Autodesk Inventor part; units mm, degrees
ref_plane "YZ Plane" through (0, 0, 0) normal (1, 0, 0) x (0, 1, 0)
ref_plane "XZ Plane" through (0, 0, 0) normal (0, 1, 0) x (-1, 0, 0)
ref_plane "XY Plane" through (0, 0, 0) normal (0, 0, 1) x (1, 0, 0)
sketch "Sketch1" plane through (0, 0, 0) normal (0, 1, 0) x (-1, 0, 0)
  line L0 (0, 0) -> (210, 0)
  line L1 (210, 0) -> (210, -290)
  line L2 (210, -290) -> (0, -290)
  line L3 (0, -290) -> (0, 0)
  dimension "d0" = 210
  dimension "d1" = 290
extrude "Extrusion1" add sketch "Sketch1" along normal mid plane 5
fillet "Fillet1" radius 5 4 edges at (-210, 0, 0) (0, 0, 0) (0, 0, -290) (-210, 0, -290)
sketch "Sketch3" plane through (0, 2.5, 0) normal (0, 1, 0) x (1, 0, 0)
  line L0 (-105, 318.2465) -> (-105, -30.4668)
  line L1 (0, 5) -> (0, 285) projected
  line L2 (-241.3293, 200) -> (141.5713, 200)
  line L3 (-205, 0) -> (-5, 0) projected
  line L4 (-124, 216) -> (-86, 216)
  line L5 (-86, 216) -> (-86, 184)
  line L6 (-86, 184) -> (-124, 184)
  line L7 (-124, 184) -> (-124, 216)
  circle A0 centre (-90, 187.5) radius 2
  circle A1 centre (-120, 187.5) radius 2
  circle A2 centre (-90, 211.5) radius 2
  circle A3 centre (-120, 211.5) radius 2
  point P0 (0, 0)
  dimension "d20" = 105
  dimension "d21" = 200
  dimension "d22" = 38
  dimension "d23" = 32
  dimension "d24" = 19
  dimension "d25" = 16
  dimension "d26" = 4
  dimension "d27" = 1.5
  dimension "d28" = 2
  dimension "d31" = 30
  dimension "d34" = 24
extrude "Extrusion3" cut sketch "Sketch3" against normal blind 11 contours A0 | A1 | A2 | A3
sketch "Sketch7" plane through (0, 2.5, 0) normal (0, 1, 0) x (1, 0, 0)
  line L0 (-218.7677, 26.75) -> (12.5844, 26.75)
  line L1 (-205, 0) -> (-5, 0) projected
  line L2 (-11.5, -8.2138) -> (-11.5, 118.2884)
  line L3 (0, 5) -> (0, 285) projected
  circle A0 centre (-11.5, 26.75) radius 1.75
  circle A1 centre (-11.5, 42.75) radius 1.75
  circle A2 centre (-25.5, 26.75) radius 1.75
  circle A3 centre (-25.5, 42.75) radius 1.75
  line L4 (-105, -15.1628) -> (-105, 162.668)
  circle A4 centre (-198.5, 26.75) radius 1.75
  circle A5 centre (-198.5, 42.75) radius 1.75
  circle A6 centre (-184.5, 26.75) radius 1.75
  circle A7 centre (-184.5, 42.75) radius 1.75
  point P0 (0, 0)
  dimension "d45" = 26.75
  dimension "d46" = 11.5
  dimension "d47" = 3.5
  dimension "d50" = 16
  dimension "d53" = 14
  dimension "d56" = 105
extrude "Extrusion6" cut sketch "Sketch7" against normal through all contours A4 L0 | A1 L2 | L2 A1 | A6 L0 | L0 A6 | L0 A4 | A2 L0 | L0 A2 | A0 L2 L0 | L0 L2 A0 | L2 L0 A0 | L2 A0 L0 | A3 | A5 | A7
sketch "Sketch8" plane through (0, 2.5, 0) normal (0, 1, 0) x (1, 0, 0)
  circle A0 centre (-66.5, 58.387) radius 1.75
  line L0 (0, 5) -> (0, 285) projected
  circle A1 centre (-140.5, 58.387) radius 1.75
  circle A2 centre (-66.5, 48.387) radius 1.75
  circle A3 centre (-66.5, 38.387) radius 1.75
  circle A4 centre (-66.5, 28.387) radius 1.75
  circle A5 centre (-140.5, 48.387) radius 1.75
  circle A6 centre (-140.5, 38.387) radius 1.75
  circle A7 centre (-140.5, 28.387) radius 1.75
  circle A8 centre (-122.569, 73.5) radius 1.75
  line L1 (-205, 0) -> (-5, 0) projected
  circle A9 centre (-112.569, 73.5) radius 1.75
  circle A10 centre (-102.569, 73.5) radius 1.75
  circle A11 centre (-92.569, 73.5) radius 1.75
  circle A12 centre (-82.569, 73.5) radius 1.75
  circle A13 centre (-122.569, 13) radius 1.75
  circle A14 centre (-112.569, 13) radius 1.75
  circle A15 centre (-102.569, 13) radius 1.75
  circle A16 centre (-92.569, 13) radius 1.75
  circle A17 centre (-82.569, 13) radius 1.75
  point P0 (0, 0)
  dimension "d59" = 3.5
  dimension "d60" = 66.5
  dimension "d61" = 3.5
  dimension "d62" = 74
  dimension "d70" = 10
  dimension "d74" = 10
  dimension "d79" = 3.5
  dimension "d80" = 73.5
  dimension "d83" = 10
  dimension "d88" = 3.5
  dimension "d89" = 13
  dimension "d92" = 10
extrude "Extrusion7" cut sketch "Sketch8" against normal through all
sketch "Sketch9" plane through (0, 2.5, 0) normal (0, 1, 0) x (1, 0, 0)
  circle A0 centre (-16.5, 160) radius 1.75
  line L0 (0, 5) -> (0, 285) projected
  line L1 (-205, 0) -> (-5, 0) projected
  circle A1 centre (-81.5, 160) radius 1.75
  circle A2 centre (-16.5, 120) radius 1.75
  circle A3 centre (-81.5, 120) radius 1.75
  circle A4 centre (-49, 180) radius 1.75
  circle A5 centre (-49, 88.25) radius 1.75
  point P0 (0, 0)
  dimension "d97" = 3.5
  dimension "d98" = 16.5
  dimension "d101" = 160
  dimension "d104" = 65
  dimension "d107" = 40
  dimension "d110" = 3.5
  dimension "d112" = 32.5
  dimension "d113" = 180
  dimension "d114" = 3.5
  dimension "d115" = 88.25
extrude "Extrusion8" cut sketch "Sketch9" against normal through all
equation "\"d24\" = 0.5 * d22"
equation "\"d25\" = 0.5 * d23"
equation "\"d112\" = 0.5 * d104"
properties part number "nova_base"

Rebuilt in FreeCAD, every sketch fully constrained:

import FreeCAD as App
import Part
import Sketcher
from FreeCAD import Vector
Q = App.Units.Quantity


def edges_at(feature, points):
    """Names of the edges that pass closest to the given points."""
    edges = feature.Shape.Edges
    near = lambda p: min(range(len(edges)), key=lambda i: edges[i].distToShape(Part.Vertex(*p))[0])
    return sorted({f"Edge{near(p) + 1}" for p in points})


def add_polygon(sketch, points):
    """Adds a closed chain of lines whose ends are joined by coincident constraints."""
    first, n = sketch.GeometryCount, len(points)
    for a, b in zip(points, points[1:] + points[:1]):
        sketch.addGeometry(Part.LineSegment(App.Vector(*a, 0), App.Vector(*b, 0)), False)
    for i in range(n):
        sketch.addConstraint(Sketcher.Constraint("Coincident", first + i, 2, first + (i + 1) % n, 1))

doc = App.newDocument("Part")
params = doc.addObject("Spreadsheet::Sheet", "Params")
for row, (alias, value) in enumerate([
    ("sketch1_width", "210 mm"),
    ("sketch1_height", "290 mm"),
    ("pad1_length", "5 mm"),
    ("fillet_radius", "5 mm"),
    ("sketch2_diameter", "4 mm"),
    ("pocket1_length", "11 mm"),
    ("sketch3_diameter", "3.5 mm"),
    ("sketch4_diameter", "3.5 mm"),
    ("sketch5_diameter", "3.5 mm"),
], start=1):
    params.set(f"A{row}", alias)
    params.set(f"B{row}", "=" + value)
    params.setAlias(f"B{row}", alias)

body = doc.addObject("PartDesign::Body", "Body")

sketch1 = body.newObject("Sketcher::SketchObject", "Sketch")
sketch1.AttachmentSupport = (doc.getObject("XZ_Plane"), [""])
sketch1.MapMode = "FlatFace"
add_polygon(sketch1, [(-210, 0), (0, 0), (0, -290), (-210, -290)])
sketch1.addConstraint([
    Sketcher.Constraint("Horizontal", 0),
    Sketcher.Constraint("Vertical", 1),
    Sketcher.Constraint("Horizontal", 2),
    Sketcher.Constraint("Vertical", 3),
    Sketcher.Constraint("Coincident", 0, 2, -1, 1),
    Sketcher.Constraint("DistanceX", 0, 1, 0, 2, Q("210 mm")),
    Sketcher.Constraint("DistanceY", 1, 2, 1, 1, Q("290 mm")),
])
sketch1.setExpression("Constraints[9]", "Params.sketch1_width")
sketch1.setExpression("Constraints[10]", "Params.sketch1_height")
pad1 = body.newObject("PartDesign::Pad", "Pad")
pad1.Profile = sketch1
pad1.setExpression("Length", "Params.pad1_length")
pad1.Midplane = True
doc.recompute()

fillet = body.newObject("PartDesign::Fillet", "Fillet")
fillet.Base = (pad1, edges_at(pad1, [
    (-210, 0, 0),
    (0, 0, 0),
    (0, 0, -290),
    (-210, 0, -290),
]))
fillet.setExpression("Radius", "Params.fillet_radius")

sketch2 = body.newObject("Sketcher::SketchObject", "Sketch001")
sketch2.AttachmentSupport = (doc.getObject("XZ_Plane"), [""])
sketch2.MapMode = "FlatFace"
sketch2.AttachmentOffset = App.Placement(Vector(0, 0, -2.5), App.Rotation())
sketch2.addGeometry([
    Part.Circle(Vector(-90, -187.5, 0), Vector(0, 0, 1), 2),
    Part.Circle(Vector(-120, -187.5, 0), Vector(0, 0, 1), 2),
    Part.Circle(Vector(-90, -211.5, 0), Vector(0, 0, 1), 2),
    Part.Circle(Vector(-120, -211.5, 0), Vector(0, 0, 1), 2),
], False)
sketch2.addConstraint([
    Sketcher.Constraint("Equal", 0, 1),
    Sketcher.Constraint("Equal", 1, 2),
    Sketcher.Constraint("Equal", 2, 3),
    Sketcher.Constraint("Horizontal", 0, 3, 1, 3),
    Sketcher.Constraint("Horizontal", 2, 3, 3, 3),
    Sketcher.Constraint("Vertical", 0, 3, 2, 3),
    Sketcher.Constraint("Vertical", 1, 3, 3, 3),
    Sketcher.Constraint("Diameter", 0, Q("4 mm")),
    Sketcher.Constraint("DistanceX", 1, 3, 0, 3, Q("30 mm")),
    Sketcher.Constraint("DistanceY", 2, 3, 0, 3, Q("24 mm")),
    Sketcher.Constraint("DistanceX", 0, 3, -1, 1, Q("90 mm")),
    Sketcher.Constraint("DistanceY", 0, 3, -1, 1, Q("187.5 mm")),
])
sketch2.setExpression("Constraints[7]", "Params.sketch2_diameter")
pocket1 = body.newObject("PartDesign::Pocket", "Pocket")
pocket1.Profile = sketch2
pocket1.setExpression("Length", "Params.pocket1_length")
pocket1.Reversed = True

sketch3 = body.newObject("Sketcher::SketchObject", "Sketch002")
sketch3.AttachmentSupport = (doc.getObject("XZ_Plane"), [""])
sketch3.MapMode = "FlatFace"
sketch3.AttachmentOffset = App.Placement(Vector(0, 0, -2.5), App.Rotation())
sketch3.addGeometry([
    Part.Circle(Vector(-198.5, -26.8, 0), Vector(0, 0, 1), 1.8),
    Part.Circle(Vector(-11.5, -42.8, 0), Vector(0, 0, 1), 1.8),
    Part.Circle(Vector(-184.5, -26.8, 0), Vector(0, 0, 1), 1.8),
    Part.Circle(Vector(-25.5, -26.8, 0), Vector(0, 0, 1), 1.8),
    Part.Circle(Vector(-11.5, -26.8, 0), Vector(0, 0, 1), 1.8),
    Part.Circle(Vector(-25.5, -42.8, 0), Vector(0, 0, 1), 1.8),
    Part.Circle(Vector(-198.5, -42.8, 0), Vector(0, 0, 1), 1.8),
    Part.Circle(Vector(-184.5, -42.8, 0), Vector(0, 0, 1), 1.8),
], False)
sketch3.addConstraint([
    Sketcher.Constraint("Equal", 0, 1),
    Sketcher.Constraint("Equal", 1, 2),
    Sketcher.Constraint("Equal", 2, 3),
    Sketcher.Constraint("Equal", 3, 4),
    Sketcher.Constraint("Equal", 4, 5),
    Sketcher.Constraint("Equal", 5, 6),
    Sketcher.Constraint("Equal", 6, 7),
    Sketcher.Constraint("Horizontal", 0, 3, 2, 3),
    Sketcher.Constraint("Horizontal", 2, 3, 3, 3),
    Sketcher.Constraint("Horizontal", 3, 3, 4, 3),
    Sketcher.Constraint("Horizontal", 1, 3, 5, 3),
    Sketcher.Constraint("Horizontal", 5, 3, 6, 3),
    Sketcher.Constraint("Horizontal", 6, 3, 7, 3),
    Sketcher.Constraint("Vertical", 1, 3, 4, 3),
    Sketcher.Constraint("Vertical", 3, 3, 5, 3),
    Sketcher.Constraint("Vertical", 0, 3, 6, 3),
    Sketcher.Constraint("Vertical", 2, 3, 7, 3),
    Sketcher.Constraint("Diameter", 0, Q("3.5 mm")),
    Sketcher.Constraint("DistanceY", 1, 3, 0, 3, Q("16 mm")),
    Sketcher.Constraint("DistanceX", 0, 3, 2, 3, Q("14 mm")),
    Sketcher.Constraint("DistanceX", 3, 3, 1, 3, Q("14 mm")),
    Sketcher.Constraint("DistanceX", 1, 3, -1, 1, Q("11.5 mm")),
    Sketcher.Constraint("DistanceY", 0, 3, -1, 1, Q("26.75 mm")),
    Sketcher.Constraint("DistanceX", 0, 3, 1, 3, Q("187 mm")),
])
sketch3.setExpression("Constraints[17]", "Params.sketch3_diameter")
pocket2 = body.newObject("PartDesign::Pocket", "Pocket001")
pocket2.Profile = sketch3
pocket2.Type = "ThroughAll"
pocket2.Reversed = True

sketch4 = body.newObject("Sketcher::SketchObject", "Sketch003")
sketch4.AttachmentSupport = (doc.getObject("XZ_Plane"), [""])
sketch4.MapMode = "FlatFace"
sketch4.AttachmentOffset = App.Placement(Vector(0, 0, -2.5), App.Rotation())
sketch4.addGeometry([
    Part.Circle(Vector(-66.5, -58.4, 0), Vector(0, 0, 1), 1.8),
    Part.Circle(Vector(-140.5, -58.4, 0), Vector(0, 0, 1), 1.8),
    Part.Circle(Vector(-66.5, -48.4, 0), Vector(0, 0, 1), 1.8),
    Part.Circle(Vector(-66.5, -38.4, 0), Vector(0, 0, 1), 1.8),
    Part.Circle(Vector(-66.5, -28.4, 0), Vector(0, 0, 1), 1.8),
    Part.Circle(Vector(-140.5, -48.4, 0), Vector(0, 0, 1), 1.8),
    Part.Circle(Vector(-140.5, -38.4, 0), Vector(0, 0, 1), 1.8),
    Part.Circle(Vector(-140.5, -28.4, 0), Vector(0, 0, 1), 1.8),
    Part.Circle(Vector(-122.6, -73.5, 0), Vector(0, 0, 1), 1.8),
    Part.Circle(Vector(-112.6, -73.5, 0), Vector(0, 0, 1), 1.8),
    Part.Circle(Vector(-102.6, -73.5, 0), Vector(0, 0, 1), 1.8),
    Part.Circle(Vector(-92.6, -73.5, 0), Vector(0, 0, 1), 1.8),
    Part.Circle(Vector(-82.6, -73.5, 0), Vector(0, 0, 1), 1.8),
    Part.Circle(Vector(-122.6, -13, 0), Vector(0, 0, 1), 1.8),
    Part.Circle(Vector(-112.6, -13, 0), Vector(0, 0, 1), 1.8),
    Part.Circle(Vector(-102.6, -13, 0), Vector(0, 0, 1), 1.8),
    Part.Circle(Vector(-92.6, -13, 0), Vector(0, 0, 1), 1.8),
    Part.Circle(Vector(-82.6, -13, 0), Vector(0, 0, 1), 1.8),
], False)
sketch4.addConstraint([
    Sketcher.Constraint("Equal", 0, 1),
    Sketcher.Constraint("Equal", 1, 2),
    Sketcher.Constraint("Equal", 2, 3),
    Sketcher.Constraint("Equal", 3, 4),
    Sketcher.Constraint("Equal", 4, 5),
    Sketcher.Constraint("Equal", 5, 6),
    Sketcher.Constraint("Equal", 6, 7),
    Sketcher.Constraint("Equal", 7, 8),
    Sketcher.Constraint("Equal", 8, 9),
    Sketcher.Constraint("Equal", 9, 10),
    Sketcher.Constraint("Equal", 10, 11),
    Sketcher.Constraint("Equal", 11, 12),
    Sketcher.Constraint("Equal", 12, 13),
    Sketcher.Constraint("Equal", 13, 14),
    Sketcher.Constraint("Equal", 14, 15),
    Sketcher.Constraint("Equal", 15, 16),
    Sketcher.Constraint("Equal", 16, 17),
    Sketcher.Constraint("Horizontal", 0, 3, 1, 3),
    Sketcher.Constraint("Horizontal", 2, 3, 5, 3),
    Sketcher.Constraint("Horizontal", 3, 3, 6, 3),
    Sketcher.Constraint("Horizontal", 4, 3, 7, 3),
    Sketcher.Constraint("Horizontal", 8, 3, 9, 3),
    Sketcher.Constraint("Horizontal", 9, 3, 10, 3),
    Sketcher.Constraint("Horizontal", 10, 3, 11, 3),
    Sketcher.Constraint("Horizontal", 11, 3, 12, 3),
    Sketcher.Constraint("Horizontal", 13, 3, 14, 3),
    Sketcher.Constraint("Horizontal", 14, 3, 15, 3),
    Sketcher.Constraint("Horizontal", 15, 3, 16, 3),
    Sketcher.Constraint("Horizontal", 16, 3, 17, 3),
    Sketcher.Constraint("Vertical", 0, 3, 2, 3),
    Sketcher.Constraint("Vertical", 2, 3, 3, 3),
    Sketcher.Constraint("Vertical", 3, 3, 4, 3),
    Sketcher.Constraint("Vertical", 1, 3, 5, 3),
    Sketcher.Constraint("Vertical", 5, 3, 6, 3),
    Sketcher.Constraint("Vertical", 6, 3, 7, 3),
    Sketcher.Constraint("Vertical", 8, 3, 13, 3),
    Sketcher.Constraint("Vertical", 9, 3, 14, 3),
    Sketcher.Constraint("Vertical", 10, 3, 15, 3),
    Sketcher.Constraint("Vertical", 11, 3, 16, 3),
    Sketcher.Constraint("Vertical", 12, 3, 17, 3),
    Sketcher.Constraint("Diameter", 0, Q("3.5 mm")),
    Sketcher.Constraint("DistanceY", 13, 3, -1, 1, Q("13 mm")),
    Sketcher.Constraint("DistanceX", 1, 3, 0, 3, Q("74 mm")),
    Sketcher.Constraint("DistanceY", 0, 3, 2, 3, Q("10 mm")),
    Sketcher.Constraint("DistanceY", 2, 3, 3, 3, Q("10 mm")),
    Sketcher.Constraint("DistanceY", 3, 3, 4, 3, Q("10 mm")),
    Sketcher.Constraint("DistanceX", 8, 3, 9, 3, Q("10 mm")),
    Sketcher.Constraint("DistanceX", 9, 3, 10, 3, Q("10 mm")),
    Sketcher.Constraint("DistanceX", 10, 3, 11, 3, Q("10 mm")),
    Sketcher.Constraint("DistanceX", 11, 3, 12, 3, Q("10 mm")),
    Sketcher.Constraint("DistanceX", 0, 3, -1, 1, Q("66.5 mm")),
    Sketcher.Constraint("DistanceY", 8, 3, -1, 1, Q("73.5 mm")),
    Sketcher.Constraint("DistanceY", 0, 3, -1, 1, Q("58.387 mm")),
    Sketcher.Constraint("DistanceX", 8, 3, -1, 1, Q("122.569 mm")),
])
sketch4.setExpression("Constraints[40]", "Params.sketch4_diameter")
pocket3 = body.newObject("PartDesign::Pocket", "Pocket002")
pocket3.Profile = sketch4
pocket3.Type = "ThroughAll"
pocket3.Reversed = True

sketch5 = body.newObject("Sketcher::SketchObject", "Sketch004")
sketch5.AttachmentSupport = (doc.getObject("XZ_Plane"), [""])
sketch5.MapMode = "FlatFace"
sketch5.AttachmentOffset = App.Placement(Vector(0, 0, -2.5), App.Rotation())
sketch5.addGeometry([
    Part.Circle(Vector(-16.5, -160, 0), Vector(0, 0, 1), 1.8),
    Part.Circle(Vector(-81.5, -160, 0), Vector(0, 0, 1), 1.8),
    Part.Circle(Vector(-16.5, -120, 0), Vector(0, 0, 1), 1.8),
    Part.Circle(Vector(-81.5, -120, 0), Vector(0, 0, 1), 1.8),
    Part.Circle(Vector(-49, -180, 0), Vector(0, 0, 1), 1.8),
    Part.Circle(Vector(-49, -88.2, 0), Vector(0, 0, 1), 1.8),
], False)
sketch5.addConstraint([
    Sketcher.Constraint("Equal", 0, 1),
    Sketcher.Constraint("Equal", 1, 2),
    Sketcher.Constraint("Equal", 2, 3),
    Sketcher.Constraint("Equal", 3, 4),
    Sketcher.Constraint("Equal", 4, 5),
    Sketcher.Constraint("Horizontal", 0, 3, 1, 3),
    Sketcher.Constraint("Horizontal", 2, 3, 3, 3),
    Sketcher.Constraint("Vertical", 0, 3, 2, 3),
    Sketcher.Constraint("Vertical", 1, 3, 3, 3),
    Sketcher.Constraint("Vertical", 4, 3, 5, 3),
    Sketcher.Constraint("Diameter", 0, Q("3.5 mm")),
    Sketcher.Constraint("DistanceY", 0, 3, -1, 1, Q("160 mm")),
    Sketcher.Constraint("DistanceY", 4, 3, -1, 1, Q("180 mm")),
    Sketcher.Constraint("DistanceX", 1, 3, 0, 3, Q("65 mm")),
    Sketcher.Constraint("DistanceY", 0, 3, 2, 3, Q("40 mm")),
    Sketcher.Constraint("DistanceX", 0, 3, -1, 1, Q("16.5 mm")),
    Sketcher.Constraint("DistanceX", 4, 3, 0, 3, Q("32.5 mm")),
    Sketcher.Constraint("DistanceY", 5, 3, -1, 1, Q("88.25 mm")),
])
sketch5.setExpression("Constraints[10]", "Params.sketch5_diameter")
pocket4 = body.newObject("PartDesign::Pocket", "Pocket003")
pocket4.Profile = sketch5
pocket4.Type = "ThroughAll"
pocket4.Reversed = True

doc.recompute()
